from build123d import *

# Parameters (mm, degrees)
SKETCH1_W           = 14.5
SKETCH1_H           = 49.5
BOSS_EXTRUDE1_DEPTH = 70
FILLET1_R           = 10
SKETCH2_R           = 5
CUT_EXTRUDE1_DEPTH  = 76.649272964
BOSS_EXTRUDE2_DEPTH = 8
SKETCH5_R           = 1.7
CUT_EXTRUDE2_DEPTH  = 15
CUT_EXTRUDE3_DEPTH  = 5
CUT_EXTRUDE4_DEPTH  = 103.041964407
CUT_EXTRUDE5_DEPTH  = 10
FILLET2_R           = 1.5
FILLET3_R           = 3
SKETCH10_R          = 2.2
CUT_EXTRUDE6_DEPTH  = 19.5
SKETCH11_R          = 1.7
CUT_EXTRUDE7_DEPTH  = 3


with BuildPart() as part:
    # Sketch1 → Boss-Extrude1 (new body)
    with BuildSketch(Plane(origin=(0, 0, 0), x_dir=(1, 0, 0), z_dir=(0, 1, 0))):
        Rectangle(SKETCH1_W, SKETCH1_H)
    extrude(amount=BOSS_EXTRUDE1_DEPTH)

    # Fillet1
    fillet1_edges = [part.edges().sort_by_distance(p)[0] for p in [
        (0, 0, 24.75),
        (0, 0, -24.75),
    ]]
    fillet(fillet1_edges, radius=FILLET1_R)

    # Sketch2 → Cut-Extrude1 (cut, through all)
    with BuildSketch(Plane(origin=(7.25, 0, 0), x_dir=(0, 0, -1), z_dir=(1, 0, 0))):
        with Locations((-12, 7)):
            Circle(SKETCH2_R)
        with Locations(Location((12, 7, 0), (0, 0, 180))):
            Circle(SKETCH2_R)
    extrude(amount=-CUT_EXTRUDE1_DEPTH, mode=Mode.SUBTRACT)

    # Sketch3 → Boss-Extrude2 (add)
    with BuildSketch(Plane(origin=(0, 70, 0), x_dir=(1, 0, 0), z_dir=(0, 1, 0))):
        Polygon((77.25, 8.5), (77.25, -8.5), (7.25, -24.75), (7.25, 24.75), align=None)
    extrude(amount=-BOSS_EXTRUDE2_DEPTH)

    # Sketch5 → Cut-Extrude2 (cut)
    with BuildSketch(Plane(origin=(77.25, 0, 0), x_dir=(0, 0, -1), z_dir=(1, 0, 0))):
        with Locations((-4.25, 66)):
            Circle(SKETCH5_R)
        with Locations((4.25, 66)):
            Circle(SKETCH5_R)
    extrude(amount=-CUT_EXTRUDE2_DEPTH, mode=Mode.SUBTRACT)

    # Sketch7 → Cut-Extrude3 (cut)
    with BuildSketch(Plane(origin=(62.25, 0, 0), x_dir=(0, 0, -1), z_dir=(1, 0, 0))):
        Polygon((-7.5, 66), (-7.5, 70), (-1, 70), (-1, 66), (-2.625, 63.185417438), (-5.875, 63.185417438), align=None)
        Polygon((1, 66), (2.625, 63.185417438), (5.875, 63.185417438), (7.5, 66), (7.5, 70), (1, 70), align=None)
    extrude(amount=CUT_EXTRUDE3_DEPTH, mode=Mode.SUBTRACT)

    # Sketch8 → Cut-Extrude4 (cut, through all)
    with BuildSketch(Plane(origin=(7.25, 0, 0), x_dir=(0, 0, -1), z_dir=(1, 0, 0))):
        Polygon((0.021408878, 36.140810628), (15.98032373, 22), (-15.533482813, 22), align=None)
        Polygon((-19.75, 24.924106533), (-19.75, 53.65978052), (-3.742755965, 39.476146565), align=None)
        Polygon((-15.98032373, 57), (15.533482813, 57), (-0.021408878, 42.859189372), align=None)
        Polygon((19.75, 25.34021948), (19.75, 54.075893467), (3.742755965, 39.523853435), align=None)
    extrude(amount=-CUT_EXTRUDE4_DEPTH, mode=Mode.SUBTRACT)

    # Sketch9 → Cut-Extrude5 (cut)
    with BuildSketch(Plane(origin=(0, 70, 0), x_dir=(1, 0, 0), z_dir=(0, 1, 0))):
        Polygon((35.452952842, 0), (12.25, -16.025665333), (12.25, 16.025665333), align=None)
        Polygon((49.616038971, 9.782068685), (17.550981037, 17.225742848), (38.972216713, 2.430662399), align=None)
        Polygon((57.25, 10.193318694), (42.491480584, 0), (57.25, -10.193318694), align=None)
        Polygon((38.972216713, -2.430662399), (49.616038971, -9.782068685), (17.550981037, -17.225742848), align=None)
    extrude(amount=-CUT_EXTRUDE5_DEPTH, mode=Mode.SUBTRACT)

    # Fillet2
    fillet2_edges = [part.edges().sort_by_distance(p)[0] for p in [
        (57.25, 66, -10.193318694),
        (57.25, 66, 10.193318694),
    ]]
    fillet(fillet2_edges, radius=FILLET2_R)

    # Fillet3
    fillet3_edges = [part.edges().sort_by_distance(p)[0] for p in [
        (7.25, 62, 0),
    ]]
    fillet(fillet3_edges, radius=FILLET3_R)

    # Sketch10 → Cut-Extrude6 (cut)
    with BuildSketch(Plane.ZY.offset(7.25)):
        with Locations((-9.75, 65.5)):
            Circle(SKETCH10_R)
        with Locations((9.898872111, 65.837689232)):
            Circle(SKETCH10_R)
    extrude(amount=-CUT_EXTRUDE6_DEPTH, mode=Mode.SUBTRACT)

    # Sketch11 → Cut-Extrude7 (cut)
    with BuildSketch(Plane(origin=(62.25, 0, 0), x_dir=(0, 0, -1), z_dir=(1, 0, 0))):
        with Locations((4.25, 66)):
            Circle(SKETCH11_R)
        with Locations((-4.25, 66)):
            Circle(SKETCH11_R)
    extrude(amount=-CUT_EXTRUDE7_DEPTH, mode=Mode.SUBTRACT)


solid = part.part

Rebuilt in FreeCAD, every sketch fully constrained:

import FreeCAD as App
import Part
import Sketcher
Q = App.Units.Quantity


def edges_at(feature, points):
    """Names of the edges that pass closest to the given points."""
    edges = feature.Shape.Edges
    near = lambda p: min(range(len(edges)), key=lambda i: edges[i].distToShape(Part.Vertex(*p))[0])
    return sorted({f"Edge{near(p) + 1}" for p in points})

doc = App.newDocument("Part")
body = doc.addObject("PartDesign::Body", "Body")

sketch1 = body.newObject("Sketcher::SketchObject", "Sketch")
sketch1.AttachmentSupport = (doc.getObject("XZ_Plane"), [""])
sketch1.MapMode = "FlatFace"
sketch1.addGeometry(Part.LineSegment(App.Vector(-7, -25, 0), App.Vector(-7, 25, 0)), False)
sketch1.addGeometry(Part.LineSegment(App.Vector(-7, 25, 0), App.Vector(7, 25, 0)), False)
sketch1.addGeometry(Part.LineSegment(App.Vector(7, 25, 0), App.Vector(7, -25, 0)), False)
sketch1.addGeometry(Part.LineSegment(App.Vector(7, -25, 0), App.Vector(-7, -25, 0)), False)
sketch1.addConstraint(Sketcher.Constraint("Coincident", 0, 2, 1, 1))
sketch1.addConstraint(Sketcher.Constraint("Coincident", 1, 2, 2, 1))
sketch1.addConstraint(Sketcher.Constraint("Coincident", 2, 2, 3, 1))
sketch1.addConstraint(Sketcher.Constraint("Coincident", 3, 2, 0, 1))
sketch1.addConstraint(Sketcher.Constraint("Vertical", 0))
sketch1.addConstraint(Sketcher.Constraint("Horizontal", 1))
sketch1.addConstraint(Sketcher.Constraint("Vertical", 2))
sketch1.addConstraint(Sketcher.Constraint("Horizontal", 3))
sketch1.addConstraint(Sketcher.Constraint("Symmetric", 0, 2, 2, 2, -1, 1))
sketch1.addConstraint(Sketcher.Constraint("DistanceX", 1, 1, 1, 2, Q("14.5 mm")))
sketch1.addConstraint(Sketcher.Constraint("DistanceY", 0, 1, 0, 2, Q("49.5 mm")))
pad1 = body.newObject("PartDesign::Pad", "Pad")
pad1.Profile = sketch1
pad1.Length = 70
pad1.Reversed = True
doc.recompute()

fillet = body.newObject("PartDesign::Fillet", "Fillet")
fillet.Base = (pad1, edges_at(pad1, [(0, 0, 24.75), (0, 0, -24.75)]))
fillet.Radius = 10

sketch2 = body.newObject("Sketcher::SketchObject", "Sketch001")
sketch2.AttachmentSupport = (doc.getObject("YZ_Plane"), [""])
sketch2.MapMode = "FlatFace"
sketch2.AttachmentOffset = App.Placement(App.Vector(0, 0, 7.25), App.Rotation())
sketch2.addGeometry(Part.Circle(App.Vector(7, 12, 0), App.Vector(0, 0, 1), 5), False)
sketch2.addGeometry(Part.Circle(App.Vector(7, -12, 0), App.Vector(0, 0, 1), 5), False)
sketch2.addConstraint(Sketcher.Constraint("Equal", 0, 1))
sketch2.addConstraint(Sketcher.Constraint("Symmetric", 0, 3, 1, 3, -1))
sketch2.addConstraint(Sketcher.Constraint("Diameter", 0, Q("10 mm")))
sketch2.addConstraint(Sketcher.Constraint("DistanceX", -1, 1, 0, 3, Q("7 mm")))
sketch2.addConstraint(Sketcher.Constraint("DistanceY", -1, 1, 0, 3, Q("12 mm")))
pocket1 = body.newObject("PartDesign::Pocket", "Pocket")
pocket1.Profile = sketch2
pocket1.Type = "ThroughAll"

sketch3 = body.newObject("Sketcher::SketchObject", "Sketch002")
sketch3.AttachmentSupport = (doc.getObject("XZ_Plane"), [""])
sketch3.MapMode = "FlatFace"
sketch3.AttachmentOffset = App.Placement(App.Vector(0, 0, -70), App.Rotation())
sketch3.addGeometry(Part.LineSegment(App.Vector(77, 8, 0), App.Vector(77, -8, 0)), False)
sketch3.addGeometry(Part.LineSegment(App.Vector(77, -8, 0), App.Vector(7, -25, 0)), False)
sketch3.addGeometry(Part.LineSegment(App.Vector(7, -25, 0), App.Vector(7, 25, 0)), False)
sketch3.addGeometry(Part.LineSegment(App.Vector(7, 25, 0), App.Vector(77, 8, 0)), False)
sketch3.addConstraint(Sketcher.Constraint("Coincident", 0, 2, 1, 1))
sketch3.addConstraint(Sketcher.Constraint("Coincident", 1, 2, 2, 1))
sketch3.addConstraint(Sketcher.Constraint("Coincident", 2, 2, 3, 1))
sketch3.addConstraint(Sketcher.Constraint("Coincident", 3, 2, 0, 1))
sketch3.addConstraint(Sketcher.Constraint("Vertical", 0))
sketch3.addConstraint(Sketcher.Constraint("Vertical", 2))
sketch3.addConstraint(Sketcher.Constraint("Equal", 1, 3))
sketch3.addConstraint(Sketcher.Constraint("DistanceY", 0, 2, 0, 1, Q("17 mm")))
sketch3.addConstraint(Sketcher.Constraint("DistanceY", 2, 1, 2, 2, Q("49.5 mm")))
sketch3.addConstraint(Sketcher.Constraint("DistanceX", 1, 2, 0, 2, Q("70 mm")))
sketch3.addConstraint(Sketcher.Constraint("DistanceY", 0, 2, -1, 1, Q("8.5 mm")))
sketch3.addConstraint(Sketcher.Constraint("DistanceX", -1, 1, 0, 2, Q("77.25 mm")))
pad2 = body.newObject("PartDesign::Pad", "Pad001")
pad2.Profile = sketch3
pad2.Length = 8

sketch4 = body.newObject("Sketcher::SketchObject", "Sketch003")
sketch4.AttachmentSupport = (doc.getObject("YZ_Plane"), [""])
sketch4.MapMode = "FlatFace"
sketch4.AttachmentOffset = App.Placement(App.Vector(0, 0, 77.25), App.Rotation())
sketch4.addGeometry(Part.Circle(App.Vector(66, 4.2, 0), App.Vector(0, 0, 1), 1.7), False)
sketch4.addGeometry(Part.Circle(App.Vector(66, -4.2, 0), App.Vector(0, 0, 1), 1.7), False)
sketch4.addConstraint(Sketcher.Constraint("Equal", 0, 1))
sketch4.addConstraint(Sketcher.Constraint("Symmetric", 0, 3, 1, 3, -1))
sketch4.addConstraint(Sketcher.Constraint("Diameter", 0, Q("3.4 mm")))
sketch4.addConstraint(Sketcher.Constraint("DistanceX", -1, 1, 0, 3, Q("66 mm")))
sketch4.addConstraint(Sketcher.Constraint("DistanceY", 1, 3, 0, 3, Q("8.5 mm")))
pocket2 = body.newObject("PartDesign::Pocket", "Pocket001")
pocket2.Profile = sketch4
pocket2.Length = 15

sketch5 = body.newObject("Sketcher::SketchObject", "Sketch004")
sketch5.AttachmentSupport = (doc.getObject("YZ_Plane"), [""])
sketch5.MapMode = "FlatFace"
sketch5.AttachmentOffset = App.Placement(App.Vector(0, 0, 62.25), App.Rotation())
sketch5.addGeometry(Part.LineSegment(App.Vector(70, 7.5, 0), App.Vector(66, 7.5, 0)), False)
sketch5.addGeometry(Part.LineSegment(App.Vector(66, 7.5, 0), App.Vector(63.2, 5.9, 0)), False)
sketch5.addGeometry(Part.LineSegment(App.Vector(63.2, 5.9, 0), App.Vector(63.2, 2.6, 0)), False)
sketch5.addGeometry(Part.LineSegment(App.Vector(63.2, 2.6, 0), App.Vector(66, 1, 0)), False)
sketch5.addGeometry(Part.LineSegment(App.Vector(66, 1, 0), App.Vector(70, 1, 0)), False)
sketch5.addGeometry(Part.LineSegment(App.Vector(70, 1, 0), App.Vector(70, 7.5, 0)), False)
sketch5.addGeometry(Part.LineSegment(App.Vector(66, -1, 0), App.Vector(63.2, -2.6, 0)), False)
sketch5.addGeometry(Part.LineSegment(App.Vector(63.2, -2.6, 0), App.Vector(63.2, -5.9, 0)), False)
sketch5.addGeometry(Part.LineSegment(App.Vector(63.2, -5.9, 0), App.Vector(66, -7.5, 0)), False)
sketch5.addGeometry(Part.LineSegment(App.Vector(66, -7.5, 0), App.Vector(70, -7.5, 0)), False)
sketch5.addGeometry(Part.LineSegment(App.Vector(70, -7.5, 0), App.Vector(70, -1, 0)), False)
sketch5.addGeometry(Part.LineSegment(App.Vector(70, -1, 0), App.Vector(66, -1, 0)), False)
sketch5.addConstraint(Sketcher.Constraint("Coincident", 0, 2, 1, 1))
sketch5.addConstraint(Sketcher.Constraint("Coincident", 1, 2, 2, 1))
sketch5.addConstraint(Sketcher.Constraint("Coincident", 2, 2, 3, 1))
sketch5.addConstraint(Sketcher.Constraint("Coincident", 3, 2, 4, 1))
sketch5.addConstraint(Sketcher.Constraint("Coincident", 4, 2, 5, 1))
sketch5.addConstraint(Sketcher.Constraint("Coincident", 5, 2, 0, 1))
sketch5.addConstraint(Sketcher.Constraint("Coincident", 6, 2, 7, 1))
sketch5.addConstraint(Sketcher.Constraint("Coincident", 7, 2, 8, 1))
sketch5.addConstraint(Sketcher.Constraint("Coincident", 8, 2, 9, 1))
sketch5.addConstraint(Sketcher.Constraint("Coincident", 9, 2, 10, 1))
sketch5.addConstraint(Sketcher.Constraint("Coincident", 10, 2, 11, 1))
sketch5.addConstraint(Sketcher.Constraint("Coincident", 11, 2, 6, 1))
sketch5.addConstraint(Sketcher.Constraint("Horizontal", 0))
sketch5.addConstraint(Sketcher.Constraint("Vertical", 2))
sketch5.addConstraint(Sketcher.Constraint("Horizontal", 4))
sketch5.addConstraint(Sketcher.Constraint("Vertical", 5))
sketch5.addConstraint(Sketcher.Constraint("Vertical", 7))
sketch5.addConstraint(Sketcher.Constraint("Horizontal", 9))
sketch5.addConstraint(Sketcher.Constraint("Vertical", 10))
sketch5.addConstraint(Sketcher.Constraint("Horizontal", 11))
sketch5.addConstraint(Sketcher.Constraint("Symmetric", 2, 2, 6, 2, -1))
sketch5.addConstraint(Sketcher.Constraint("Symmetric", 0, 2, 8, 2, -1))
sketch5.addConstraint(Sketcher.Constraint("Symmetric", 4, 2, 10, 2, -1))
sketch5.addConstraint(Sketcher.Constraint("Parallel", 1, 6))
sketch5.addConstraint(Sketcher.Constraint("Parallel", 3, 8))
sketch5.addConstraint(Sketcher.Constraint("Vertical", 0, 2, 3, 2))
sketch5.addConstraint(Sketcher.Constraint("Vertical", 8, 2, 11, 2))
sketch5.addConstraint(Sketcher.Constraint("DistanceX", 0, 2, 0, 1, Q("4 mm")))
sketch5.addConstraint(Sketcher.Constraint("Angle", 1, Q("-150 deg")))
sketch5.addConstraint(Sketcher.Constraint("DistanceY", 5, 1, 5, 2, Q("6.5 mm")))
sketch5.addConstraint(Sketcher.Constraint("DistanceX", -1, 1, 0, 2, Q("66 mm")))
sketch5.addConstraint(Sketcher.Constraint("DistanceY", -1, 1, 3, 2, Q("1 mm")))
sketch5.addConstraint(Sketcher.Constraint("DistanceY", 2, 2, 2, 1, Q("3.25 mm")))
pocket3 = body.newObject("PartDesign::Pocket", "Pocket002")
pocket3.Profile = sketch5
pocket3.Length = 5
pocket3.Reversed = True

sketch6 = body.newObject("Sketcher::SketchObject", "Sketch005")
sketch6.AttachmentSupport = (doc.getObject("YZ_Plane"), [""])
sketch6.MapMode = "FlatFace"
sketch6.AttachmentOffset = App.Placement(App.Vector(0, 0, 7.25), App.Rotation())
sketch6.addGeometry(Part.LineSegment(App.Vector(22, -16, 0), App.Vector(36, 0, 0)), False)
sketch6.addGeometry(Part.LineSegment(App.Vector(36, 0, 0), App.Vector(22, 16, 0)), False)
sketch6.addGeometry(Part.LineSegment(App.Vector(22, 16, 0), App.Vector(22, -16, 0)), False)
sketch6.addGeometry(Part.LineSegment(App.Vector(54, 20, 0), App.Vector(25, 20, 0)), False)
sketch6.addGeometry(Part.LineSegment(App.Vector(25, 20, 0), App.Vector(39, 4, 0)), False)
sketch6.addGeometry(Part.LineSegment(App.Vector(39, 4, 0), App.Vector(54, 20, 0)), False)
sketch6.addGeometry(Part.LineSegment(App.Vector(57, -16, 0), App.Vector(57, 16, 0)), False)
sketch6.addGeometry(Part.LineSegment(App.Vector(57, 16, 0), App.Vector(43, 0, 0)), False)
sketch6.addGeometry(Part.LineSegment(App.Vector(43, 0, 0), App.Vector(57, -16, 0)), False)
sketch6.addGeometry(Part.LineSegment(App.Vector(25, -20, 0), App.Vector(54, -20, 0)), False)
sketch6.addGeometry(Part.LineSegment(App.Vector(54, -20, 0), App.Vector(40, -4, 0)), False)
sketch6.addGeometry(Part.LineSegment(App.Vector(40, -4, 0), App.Vector(25, -20, 0)), False)
sketch6.addConstraint(Sketcher.Constraint("Coincident", 0, 2, 1, 1))
sketch6.addConstraint(Sketcher.Constraint("Coincident", 1, 2, 2, 1))
sketch6.addConstraint(Sketcher.Constraint("Coincident", 2, 2, 0, 1))
sketch6.addConstraint(Sketcher.Constraint("Coincident", 3, 2, 4, 1))
sketch6.addConstraint(Sketcher.Constraint("Coincident", 4, 2, 5, 1))
sketch6.addConstraint(Sketcher.Constraint("Coincident", 5, 2, 3, 1))
sketch6.addConstraint(Sketcher.Constraint("Coincident", 6, 2, 7, 1))
sketch6.addConstraint(Sketcher.Constraint("Coincident", 7, 2, 8, 1))
sketch6.addConstraint(Sketcher.Constraint("Coincident", 8, 2, 6, 1))
sketch6.addConstraint(Sketcher.Constraint("Coincident", 9, 2, 10, 1))
sketch6.addConstraint(Sketcher.Constraint("Coincident", 10, 2, 11, 1))
sketch6.addConstraint(Sketcher.Constraint("Coincident", 11, 2, 9, 1))
sketch6.addConstraint(Sketcher.Constraint("Vertical", 2))
sketch6.addConstraint(Sketcher.Constraint("Horizontal", 3))
sketch6.addConstraint(Sketcher.Constraint("Vertical", 6))
sketch6.addConstraint(Sketcher.Constraint("Horizontal", 9))
sketch6.addConstraint(Sketcher.Constraint("Parallel", 1, 4))
sketch6.addConstraint(Sketcher.Constraint("Parallel", 0, 5))
sketch6.addConstraint(Sketcher.Constraint("Parallel", 5, 7))
sketch6.addConstraint(Sketcher.Constraint("Parallel", 4, 8))
sketch6.addConstraint(Sketcher.Constraint("Parallel", 8, 10))
sketch6.addConstraint(Sketcher.Constraint("Parallel", 7, 11))
sketch6.addConstraint(Sketcher.Constraint("Equal", 3, 9))
sketch6.addConstraint(Sketcher.Constraint("Equal", 2, 6))
sketch6.addConstraint(Sketcher.Constraint("DistanceX", -1, 1, 1, 2, Q("22 mm")))
sketch6.addConstraint(Sketcher.Constraint("DistanceX", -1, 1, 6, 2, Q("57 mm")))
sketch6.addConstraint(Sketcher.Constraint("DistanceY", -1, 1, 3, 2, Q("19.75 mm")))
sketch6.addConstraint(Sketcher.Constraint("DistanceY", 9, 2, -1, 1, Q("19.75 mm")))
sketch6.addConstraint(Sketcher.Constraint("Distance", 0, Q("21.322511 mm")))
sketch6.addConstraint(Sketcher.Constraint("DistanceX", 3, 2, 3, 1, Q("28.735674 mm")))
sketch6.addConstraint(Sketcher.Constraint("DistanceY", 2, 2, 2, 1, Q("31.513807 mm")))
sketch6.addConstraint(Sketcher.Constraint("DistanceX", -1, 1, 0, 2, Q("36.140811 mm")))
sketch6.addConstraint(Sketcher.Constraint("DistanceY", 0, 2, -1, 1, Q("0.021409 mm")))
sketch6.addConstraint(Sketcher.Constraint("DistanceX", -1, 1, 5, 2, Q("53.659781 mm")))
sketch6.addConstraint(Sketcher.Constraint("DistanceY", -1, 1, 7, 2, Q("0.021409 mm")))
sketch6.addConstraint(Sketcher.Constraint("DistanceX", -1, 1, 11, 2, Q("25.340219 mm")))
pocket4 = body.newObject("PartDesign::Pocket", "Pocket003")
pocket4.Profile = sketch6
pocket4.Type = "ThroughAll"

sketch7 = body.newObject("Sketcher::SketchObject", "Sketch006")
sketch7.AttachmentSupport = (doc.getObject("XZ_Plane"), [""])
sketch7.MapMode = "FlatFace"
sketch7.AttachmentOffset = App.Placement(App.Vector(0, 0, -70), App.Rotation())
sketch7.addGeometry(Part.LineSegment(App.Vector(12, 16, 0), App.Vector(35, 0, 0)), False)
sketch7.addGeometry(Part.LineSegment(App.Vector(35, 0, 0), App.Vector(12, -16, 0)), False)
sketch7.addGeometry(Part.LineSegment(App.Vector(12, -16, 0), App.Vector(12, 16, 0)), False)
sketch7.addGeometry(Part.LineSegment(App.Vector(50, -10, 0), App.Vector(18, -17, 0)), False)
sketch7.addGeometry(Part.LineSegment(App.Vector(18, -17, 0), App.Vector(39, -2, 0)), False)
sketch7.addGeometry(Part.LineSegment(App.Vector(39, -2, 0), App.Vector(50, -10, 0)), False)
sketch7.addGeometry(Part.LineSegment(App.Vector(57, -10, 0), App.Vector(42, 0, 0)), False)
sketch7.addGeometry(Part.LineSegment(App.Vector(42, 0, 0), App.Vector(57, 10, 0)), False)
sketch7.addGeometry(Part.LineSegment(App.Vector(57, 10, 0), App.Vector(57, -10, 0)), False)
sketch7.addGeometry(Part.LineSegment(App.Vector(50, 10, 0), App.Vector(39, 2, 0)), False)
sketch7.addGeometry(Part.LineSegment(App.Vector(39, 2, 0), App.Vector(18, 17, 0)), False)
sketch7.addGeometry(Part.LineSegment(App.Vector(18, 17, 0), App.Vector(50, 10, 0)), False)
sketch7.addConstraint(Sketcher.Constraint("Coincident", 0, 2, 1, 1))
sketch7.addConstraint(Sketcher.Constraint("Coincident", 1, 2, 2, 1))
sketch7.addConstraint(Sketcher.Constraint("Coincident", 2, 2, 0, 1))
sketch7.addConstraint(Sketcher.Constraint("Coincident", 3, 2, 4, 1))
sketch7.addConstraint(Sketcher.Constraint("Coincident", 4, 2, 5, 1))
sketch7.addConstraint(Sketcher.Constraint("Coincident", 5, 2, 3, 1))
sketch7.addConstraint(Sketcher.Constraint("Coincident", 6, 2, 7, 1))
sketch7.addConstraint(Sketcher.Constraint("Coincident", 7, 2, 8, 1))
sketch7.addConstraint(Sketcher.Constraint("Coincident", 8, 2, 6, 1))
sketch7.addConstraint(Sketcher.Constraint("Coincident", 9, 2, 10, 1))
sketch7.addConstraint(Sketcher.Constraint("Coincident", 10, 2, 11, 1))
sketch7.addConstraint(Sketcher.Constraint("Coincident", 11, 2, 9, 1))
sketch7.addConstraint(Sketcher.Constraint("Vertical", 2))
sketch7.addConstraint(Sketcher.Constraint("Vertical", 8))
sketch7.addConstraint(Sketcher.Constraint("Symmetric", 4, 2, 9, 2, -1))
sketch7.addConstraint(Sketcher.Constraint("Symmetric", 3, 2, 10, 2, -1))
sketch7.addConstraint(Sketcher.Constraint("Symmetric", 5, 2, 11, 2, -1))
sketch7.addConstraint(Sketcher.Constraint("PointOnObject", 0, 2, -1))
sketch7.addConstraint(Sketcher.Constraint("PointOnObject", 6, 2, -1))
sketch7.addConstraint(Sketcher.Constraint("Parallel", 1, 4))
sketch7.addConstraint(Sketcher.Constraint("Parallel", 0, 5))
sketch7.addConstraint(Sketcher.Constraint("Parallel", 5, 6))
sketch7.addConstraint(Sketcher.Constraint("Parallel", 4, 7))
sketch7.addConstraint(Sketcher.Constraint("Parallel", 7, 9))
sketch7.addConstraint(Sketcher.Constraint("DistanceX", 2, 2, 7, 2, Q("45 mm")))
sketch7.addConstraint(Sketcher.Constraint("DistanceX", -1, 1, 1, 2, Q("12.25 mm")))
sketch7.addConstraint(Sketcher.Constraint("DistanceY", 2, 1, 2, 2, Q("32.051331 mm")))
sketch7.addConstraint(Sketcher.Constraint("DistanceX", 3, 2, 6, 2, Q("24.9405 mm")))
sketch7.addConstraint(Sketcher.Constraint("Distance", 3, Q("32.917719 mm")))
sketch7.addConstraint(Sketcher.Constraint("Distance", 5, Q("12.935769 mm")))
sketch7.addConstraint(Sketcher.Constraint("Distance", 6, Q("17.936489 mm")))
sketch7.addConstraint(Sketcher.Constraint("DistanceY", 8, 2, 8, 1, Q("20.386637 mm")))
sketch7.addConstraint(Sketcher.Constraint("DistanceY", 5, 2, -1, 1, Q("9.782069 mm")))
pocket5 = body.newObject("PartDesign::Pocket", "Pocket004")
pocket5.Profile = sketch7
pocket5.Length = 10
pocket5.Reversed = True
doc.recompute()

fillet2 = body.newObject("PartDesign::Fillet", "Fillet001")
fillet2.Base = (pocket5, edges_at(pocket5, [(57.25, 66, -10.193), (57.25, 66, 10.193)]))
fillet2.Radius = 1.5
doc.recompute()

fillet3 = body.newObject("PartDesign::Fillet", "Fillet002")
fillet3.Base = (fillet2, edges_at(fillet2, [(7.25, 62, 0)]))
fillet3.Radius = 3

sketch8 = body.newObject("Sketcher::SketchObject", "Sketch007")
sketch8.AttachmentSupport = (doc.getObject("YZ_Plane"), [""])
sketch8.MapMode = "FlatFace"
sketch8.AttachmentOffset = App.Placement(App.Vector(0, 0, -7.25), App.Rotation())
sketch8.addGeometry(Part.Circle(App.Vector(65.5, -9.8, 0), App.Vector(0, 0, 1), 2.2), False)
sketch8.addGeometry(Part.Circle(App.Vector(65.8, 9.9, 0), App.Vector(0, 0, 1), 2.2), False)
sketch8.addConstraint(Sketcher.Constraint("Equal", 0, 1))
sketch8.addConstraint(Sketcher.Constraint("Diameter", 0, Q("4.4 mm")))
sketch8.addConstraint(Sketcher.Constraint("DistanceX", -1, 1, 0, 3, Q("65.5 mm")))
sketch8.addConstraint(Sketcher.Constraint("DistanceY", 0, 3, -1, 1, Q("9.75 mm")))
sketch8.addConstraint(Sketcher.Constraint("DistanceX", -1, 1, 1, 3, Q("65.837689 mm")))
sketch8.addConstraint(Sketcher.Constraint("DistanceY", -1, 1, 1, 3, Q("9.898872 mm")))
pocket6 = body.newObject("PartDesign::Pocket", "Pocket005")
pocket6.Profile = sketch8
pocket6.Length = 19.5
pocket6.Reversed = True

sketch9 = body.newObject("Sketcher::SketchObject", "Sketch008")
sketch9.AttachmentSupport = (doc.getObject("YZ_Plane"), [""])
sketch9.MapMode = "FlatFace"
sketch9.AttachmentOffset = App.Placement(App.Vector(0, 0, 62.25), App.Rotation())
sketch9.addGeometry(Part.Circle(App.Vector(66, -4.2, 0), App.Vector(0, 0, 1), 1.7), False)
sketch9.addGeometry(Part.Circle(App.Vector(66, 4.2, 0), App.Vector(0, 0, 1), 1.7), False)
sketch9.addConstraint(Sketcher.Constraint("Equal", 0, 1))
sketch9.addConstraint(Sketcher.Constraint("Symmetric", 0, 3, 1, 3, -1))
sketch9.addConstraint(Sketcher.Constraint("Diameter", 0, Q("3.4 mm")))
sketch9.addConstraint(Sketcher.Constraint("DistanceX", -1, 1, 0, 3, Q("66 mm")))
sketch9.addConstraint(Sketcher.Constraint("DistanceY", 0, 3, 1, 3, Q("8.5 mm")))
pocket7 = body.newObject("PartDesign::Pocket", "Pocket006")
pocket7.Profile = sketch9
pocket7.Length = 3

doc.recompute()
